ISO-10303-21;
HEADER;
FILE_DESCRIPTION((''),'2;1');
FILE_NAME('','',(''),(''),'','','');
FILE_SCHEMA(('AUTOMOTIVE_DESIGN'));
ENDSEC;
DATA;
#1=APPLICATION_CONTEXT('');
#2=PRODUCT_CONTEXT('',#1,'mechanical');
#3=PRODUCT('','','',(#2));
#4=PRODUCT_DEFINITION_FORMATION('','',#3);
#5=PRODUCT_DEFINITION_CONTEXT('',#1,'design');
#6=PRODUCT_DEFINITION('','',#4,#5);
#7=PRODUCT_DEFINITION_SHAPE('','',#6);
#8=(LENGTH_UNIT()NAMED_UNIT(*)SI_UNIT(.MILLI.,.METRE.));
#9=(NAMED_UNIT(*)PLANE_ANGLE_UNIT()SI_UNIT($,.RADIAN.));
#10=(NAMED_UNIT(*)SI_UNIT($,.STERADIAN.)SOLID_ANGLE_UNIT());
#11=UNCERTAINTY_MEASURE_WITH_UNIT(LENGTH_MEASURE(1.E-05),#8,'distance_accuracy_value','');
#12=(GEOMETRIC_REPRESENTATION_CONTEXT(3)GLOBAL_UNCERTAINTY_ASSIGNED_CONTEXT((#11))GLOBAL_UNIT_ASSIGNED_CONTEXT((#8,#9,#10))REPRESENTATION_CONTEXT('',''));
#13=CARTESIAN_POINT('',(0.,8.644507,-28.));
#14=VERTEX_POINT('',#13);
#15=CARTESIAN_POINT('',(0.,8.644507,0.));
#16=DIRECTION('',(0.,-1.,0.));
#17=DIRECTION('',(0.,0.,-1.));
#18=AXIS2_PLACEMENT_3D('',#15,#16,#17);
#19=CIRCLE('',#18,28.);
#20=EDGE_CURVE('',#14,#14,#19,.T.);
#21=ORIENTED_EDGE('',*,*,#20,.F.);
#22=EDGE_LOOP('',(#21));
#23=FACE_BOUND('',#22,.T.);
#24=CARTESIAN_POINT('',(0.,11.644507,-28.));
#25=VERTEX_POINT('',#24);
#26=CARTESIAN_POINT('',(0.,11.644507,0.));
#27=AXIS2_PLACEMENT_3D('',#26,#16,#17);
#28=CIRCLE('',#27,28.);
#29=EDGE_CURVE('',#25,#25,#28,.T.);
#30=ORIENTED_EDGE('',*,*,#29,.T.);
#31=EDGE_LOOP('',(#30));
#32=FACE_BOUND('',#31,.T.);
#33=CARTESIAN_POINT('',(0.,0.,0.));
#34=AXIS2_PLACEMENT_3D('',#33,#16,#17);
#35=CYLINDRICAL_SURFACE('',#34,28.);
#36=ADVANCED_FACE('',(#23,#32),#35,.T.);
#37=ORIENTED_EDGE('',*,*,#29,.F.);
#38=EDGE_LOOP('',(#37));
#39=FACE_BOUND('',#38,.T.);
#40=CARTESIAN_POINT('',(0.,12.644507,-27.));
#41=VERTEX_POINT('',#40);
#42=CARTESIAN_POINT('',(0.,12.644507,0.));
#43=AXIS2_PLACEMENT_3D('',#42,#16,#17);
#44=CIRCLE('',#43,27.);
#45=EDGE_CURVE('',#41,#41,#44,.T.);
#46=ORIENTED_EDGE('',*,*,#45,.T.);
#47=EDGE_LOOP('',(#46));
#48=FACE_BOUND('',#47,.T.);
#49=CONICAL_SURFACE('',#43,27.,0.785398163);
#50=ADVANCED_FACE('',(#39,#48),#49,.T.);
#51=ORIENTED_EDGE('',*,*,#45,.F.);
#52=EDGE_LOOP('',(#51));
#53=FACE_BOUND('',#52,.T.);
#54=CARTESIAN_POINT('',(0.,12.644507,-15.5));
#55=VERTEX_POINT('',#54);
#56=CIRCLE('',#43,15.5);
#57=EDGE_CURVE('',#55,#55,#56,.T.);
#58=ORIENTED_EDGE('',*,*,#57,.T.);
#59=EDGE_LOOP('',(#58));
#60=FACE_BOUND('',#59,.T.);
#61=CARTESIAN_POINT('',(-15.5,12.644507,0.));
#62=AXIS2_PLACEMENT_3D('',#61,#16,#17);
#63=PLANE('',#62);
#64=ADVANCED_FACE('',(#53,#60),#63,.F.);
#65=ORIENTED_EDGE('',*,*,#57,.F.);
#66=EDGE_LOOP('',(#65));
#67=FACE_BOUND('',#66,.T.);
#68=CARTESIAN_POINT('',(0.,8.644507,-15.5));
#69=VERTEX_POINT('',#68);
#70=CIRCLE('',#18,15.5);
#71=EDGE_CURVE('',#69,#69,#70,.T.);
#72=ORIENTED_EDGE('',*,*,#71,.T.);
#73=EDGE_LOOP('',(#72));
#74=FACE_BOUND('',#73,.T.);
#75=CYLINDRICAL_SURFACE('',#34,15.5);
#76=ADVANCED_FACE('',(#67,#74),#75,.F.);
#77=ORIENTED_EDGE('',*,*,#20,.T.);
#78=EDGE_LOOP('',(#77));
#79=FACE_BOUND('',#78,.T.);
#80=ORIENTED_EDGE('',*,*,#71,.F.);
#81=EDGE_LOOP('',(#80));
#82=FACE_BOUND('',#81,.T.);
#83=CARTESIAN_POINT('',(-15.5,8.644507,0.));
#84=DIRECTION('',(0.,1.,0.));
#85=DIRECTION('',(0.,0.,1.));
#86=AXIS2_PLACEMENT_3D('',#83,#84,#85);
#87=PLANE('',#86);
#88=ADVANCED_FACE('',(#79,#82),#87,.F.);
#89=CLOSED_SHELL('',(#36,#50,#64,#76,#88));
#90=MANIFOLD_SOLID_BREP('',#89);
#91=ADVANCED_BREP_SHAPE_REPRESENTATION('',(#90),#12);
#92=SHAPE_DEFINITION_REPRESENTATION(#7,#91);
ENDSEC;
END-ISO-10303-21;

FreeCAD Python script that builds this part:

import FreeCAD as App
import Part
import Sketcher

V = App.Vector
Q = App.Units.Quantity


def add_polygon(sketch, points):
    """Adds a closed chain of lines whose ends are joined by coincident constraints."""
    first, n = sketch.GeometryCount, len(points)
    for a, b in zip(points, points[1:] + points[:1]):
        sketch.addGeometry(Part.LineSegment(App.Vector(*a, 0), App.Vector(*b, 0)), False)
    for i in range(n):
        sketch.addConstraint(Sketcher.Constraint("Coincident", first + i, 2, first + (i + 1) % n, 1))

doc = App.newDocument("Part")
body = doc.addObject("PartDesign::Body", "Body")

# Sketch on XY plane
sketch1 = body.newObject("Sketcher::SketchObject", "Sketch")
sketch1.AttachmentSupport = (doc.getObject("XY_Plane"), [""])
sketch1.MapMode = "FlatFace"
add_polygon(sketch1, [(-27, 12.644507), (-28, 11.644507), (-28, 8.644507), (-15.5, 8.644507), (-15.5, 12.644507)])  # lines 0-4
sketch1.addConstraint([
    Sketcher.Constraint("Vertical", 1),
    Sketcher.Constraint("Horizontal", 2),
    Sketcher.Constraint("Vertical", 3),
    Sketcher.Constraint("Horizontal", 4),
    Sketcher.Constraint("DistanceY", 1, 2, 1, 1, 3.0),
    Sketcher.Constraint("DistanceY", 3, 1, 3, 2, 4.0),
    Sketcher.Constraint("Angle", 0, Q("-135 deg")),
    Sketcher.Constraint("DistanceX", 2, 1, 2, 2, 12.5),
    Sketcher.Constraint("DistanceX", 0, 2, -1, 1, 28.0),
    Sketcher.Constraint("DistanceY", -1, 1, 0, 2, 11.644507),
])
revolution = body.newObject("PartDesign::Revolution", "Revolution")
revolution.Profile = sketch1
revolution.ReferenceAxis = (sketch1, ["V_Axis"])
revolution.Angle = 360

doc.recompute()
